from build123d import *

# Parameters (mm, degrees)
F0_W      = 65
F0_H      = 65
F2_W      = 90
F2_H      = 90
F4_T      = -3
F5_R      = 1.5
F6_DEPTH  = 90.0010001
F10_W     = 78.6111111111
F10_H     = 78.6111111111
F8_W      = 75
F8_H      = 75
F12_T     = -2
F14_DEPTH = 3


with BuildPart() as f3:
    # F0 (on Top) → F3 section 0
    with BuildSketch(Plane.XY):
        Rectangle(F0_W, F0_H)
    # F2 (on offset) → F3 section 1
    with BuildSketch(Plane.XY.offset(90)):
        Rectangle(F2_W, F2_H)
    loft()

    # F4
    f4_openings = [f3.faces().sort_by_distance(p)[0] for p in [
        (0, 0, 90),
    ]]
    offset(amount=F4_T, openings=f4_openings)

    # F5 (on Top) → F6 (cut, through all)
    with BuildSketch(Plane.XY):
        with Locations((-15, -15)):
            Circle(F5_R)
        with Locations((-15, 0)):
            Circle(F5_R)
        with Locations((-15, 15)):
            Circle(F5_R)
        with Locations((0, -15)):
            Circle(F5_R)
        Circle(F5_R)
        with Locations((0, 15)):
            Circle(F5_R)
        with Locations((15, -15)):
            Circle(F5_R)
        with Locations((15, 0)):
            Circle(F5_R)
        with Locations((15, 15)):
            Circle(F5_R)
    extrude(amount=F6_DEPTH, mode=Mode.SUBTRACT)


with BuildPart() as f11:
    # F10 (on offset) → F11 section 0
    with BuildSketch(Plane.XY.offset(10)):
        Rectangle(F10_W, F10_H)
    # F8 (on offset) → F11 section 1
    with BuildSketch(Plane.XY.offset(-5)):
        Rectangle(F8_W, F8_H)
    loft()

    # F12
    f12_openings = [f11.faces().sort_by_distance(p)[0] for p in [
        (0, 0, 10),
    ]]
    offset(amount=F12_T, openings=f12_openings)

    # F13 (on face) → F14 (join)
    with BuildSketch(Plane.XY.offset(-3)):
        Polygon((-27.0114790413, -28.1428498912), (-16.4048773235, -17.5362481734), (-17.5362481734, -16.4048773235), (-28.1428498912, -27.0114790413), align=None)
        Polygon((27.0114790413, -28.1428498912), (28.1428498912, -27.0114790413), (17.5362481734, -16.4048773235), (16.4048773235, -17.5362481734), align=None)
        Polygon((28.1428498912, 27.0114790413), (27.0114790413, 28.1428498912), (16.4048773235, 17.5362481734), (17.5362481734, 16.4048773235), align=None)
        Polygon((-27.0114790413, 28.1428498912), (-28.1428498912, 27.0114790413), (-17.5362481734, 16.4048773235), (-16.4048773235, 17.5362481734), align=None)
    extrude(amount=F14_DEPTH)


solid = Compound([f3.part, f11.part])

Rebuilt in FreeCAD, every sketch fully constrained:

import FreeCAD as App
import Part
import Sketcher
from FreeCAD import Vector


def faces_at(feature, points):
    """Names of the faces that lie closest to the given points."""
    faces = feature.Shape.Faces
    near = lambda p: min(range(len(faces)), key=lambda i: faces[i].distToShape(Part.Vertex(*p))[0])
    return sorted({f"Face{near(p) + 1}" for p in points})


def add_polygon(sketch, points):
    """Adds a closed chain of lines whose ends are joined by coincident constraints."""
    first, n = sketch.GeometryCount, len(points)
    for a, b in zip(points, points[1:] + points[:1]):
        sketch.addGeometry(Part.LineSegment(App.Vector(*a, 0), App.Vector(*b, 0)), False)
    for i in range(n):
        sketch.addConstraint(Sketcher.Constraint("Coincident", first + i, 2, first + (i + 1) % n, 1))

doc = App.newDocument("Part")
body = doc.addObject("PartDesign::Body", "Body")

# Sketch on XY plane
sketch1 = body.newObject("Sketcher::SketchObject", "Sketch")
sketch1.AttachmentSupport = (doc.getObject("XY_Plane"), [""])
sketch1.MapMode = "FlatFace"
add_polygon(sketch1, [(-32, 32), (-32, -32), (32, -32), (32, 32)])  # lines 0-3
sketch1.addConstraint([
    Sketcher.Constraint("Vertical", 0),
    Sketcher.Constraint("Horizontal", 1),
    Sketcher.Constraint("Vertical", 2),
    Sketcher.Constraint("Horizontal", 3),
    Sketcher.Constraint("Symmetric", 0, 2, 2, 2, -1, 1),
    Sketcher.Constraint("Equal", 3, 0),
    Sketcher.Constraint("DistanceX", 1, 1, 1, 2, 65.0),
])

# Sketch on XY plane
sketch2 = body.newObject("Sketcher::SketchObject", "Sketch001")
sketch2.AttachmentSupport = (doc.getObject("XY_Plane"), [""])
sketch2.MapMode = "FlatFace"
sketch2.AttachmentOffset = App.Placement(Vector(0, 0, 90), App.Rotation())
add_polygon(sketch2, [(-45, 45), (-45, -45), (45, -45), (45, 45)])  # lines 0-3
sketch2.addConstraint([
    Sketcher.Constraint("Vertical", 0),
    Sketcher.Constraint("Horizontal", 1),
    Sketcher.Constraint("Vertical", 2),
    Sketcher.Constraint("Horizontal", 3),
    Sketcher.Constraint("Symmetric", 0, 2, 2, 2, -1, 1),
    Sketcher.Constraint("Equal", 3, 0),
    Sketcher.Constraint("DistanceX", 1, 1, 1, 2, 90.0),
])

additiveloft = body.newObject("PartDesign::AdditiveLoft", "AdditiveLoft")
additiveloft.Profile = sketch1
additiveloft.Sections = [sketch2]
doc.recompute()

thickness = body.newObject("PartDesign::Thickness", "Thickness")
thickness.Base = (additiveloft, faces_at(additiveloft, [(0, 0, 90)]))
thickness.Value = 3
thickness.Reversed = True
thickness.Join = "Arc"

# Sketch on XY plane
sketch3 = body.newObject("Sketcher::SketchObject", "Sketch002")
sketch3.AttachmentSupport = (doc.getObject("XY_Plane"), [""])
sketch3.MapMode = "FlatFace"
sketch3.addGeometry([
    Part.Circle(Vector(-15, -15, 0), Vector(0, 0, 1), 1.5),  # 0
    Part.Circle(Vector(-15, 0, 0), Vector(0, 0, 1), 1.5),  # 1
    Part.Circle(Vector(-15, 15, 0), Vector(0, 0, 1), 1.5),  # 2
    Part.Circle(Vector(0, -15, 0), Vector(0, 0, 1), 1.5),  # 3
    Part.Circle(Vector(0, 0, 0), Vector(0, 0, 1), 1.5),  # 4
    Part.Circle(Vector(0, 15, 0), Vector(0, 0, 1), 1.5),  # 5
    Part.Circle(Vector(15, -15, 0), Vector(0, 0, 1), 1.5),  # 6
    Part.Circle(Vector(15, 0, 0), Vector(0, 0, 1), 1.5),  # 7
    Part.Circle(Vector(15, 15, 0), Vector(0, 0, 1), 1.5),  # 8
], False)
sketch3.addConstraint([
    Sketcher.Constraint("Coincident", 4, 3, -1, 1),
    Sketcher.Constraint("Equal", 0, 1),
    Sketcher.Constraint("Equal", 1, 2),
    Sketcher.Constraint("Equal", 2, 3),
    Sketcher.Constraint("Equal", 3, 4),
    Sketcher.Constraint("Equal", 4, 5),
    Sketcher.Constraint("Equal", 5, 6),
    Sketcher.Constraint("Equal", 6, 7),
    Sketcher.Constraint("Equal", 7, 8),
    Sketcher.Constraint("Symmetric", 3, 3, 5, 3, -1, 1),
    Sketcher.Constraint("Symmetric", 2, 3, 6, 3, -1, 1),
    Sketcher.Constraint("Symmetric", 1, 3, 7, 3, -1, 1),
    Sketcher.Constraint("Symmetric", 0, 3, 8, 3, -1, 1),
    Sketcher.Constraint("Symmetric", 0, 3, 6, 3, -2),
    Sketcher.Constraint("PointOnObject", 1, 3, -1),
    Sketcher.Constraint("PointOnObject", 3, 3, -2),
    Sketcher.Constraint("Horizontal", 0, 3, 3, 3),
    Sketcher.Constraint("Vertical", 0, 3, 1, 3),
    Sketcher.Constraint("Diameter", 0, 3.0),
    Sketcher.Constraint("DistanceX", 0, 3, -1, 1, 15.0),
    Sketcher.Constraint("DistanceY", 0, 3, -1, 1, 15.0),
])
pocket1 = body.newObject("PartDesign::Pocket", "Pocket")
pocket1.Profile = sketch3
pocket1.Type = "ThroughAll"
pocket1.Reversed = True
body2 = doc.addObject("PartDesign::Body", "Body001")

# Sketch on XY plane
sketch4 = body2.newObject("Sketcher::SketchObject", "Sketch003")
sketch4.AttachmentSupport = (doc.getObject("XY_Plane001"), [""])
sketch4.MapMode = "FlatFace"
sketch4.AttachmentOffset = App.Placement(Vector(0, 0, 10), App.Rotation())
add_polygon(sketch4, [(-39, 39), (-39, -39), (39, -39), (39, 39)])  # lines 0-3
sketch4.addConstraint([
    Sketcher.Constraint("Vertical", 0),
    Sketcher.Constraint("Horizontal", 1),
    Sketcher.Constraint("Vertical", 2),
    Sketcher.Constraint("Horizontal", 3),
    Sketcher.Constraint("Symmetric", 0, 2, 2, 2, -1, 1),
    Sketcher.Constraint("Equal", 3, 0),
    Sketcher.Constraint("DistanceX", 1, 1, 1, 2, 78.611111),
])

# Sketch on XY plane
sketch5 = body2.newObject("Sketcher::SketchObject", "Sketch004")
sketch5.AttachmentSupport = (doc.getObject("XY_Plane001"), [""])
sketch5.MapMode = "FlatFace"
sketch5.AttachmentOffset = App.Placement(Vector(0, 0, -5), App.Rotation())
add_polygon(sketch5, [(-38, 38), (-38, -38), (38, -38), (38, 38)])  # lines 0-3
sketch5.addConstraint([
    Sketcher.Constraint("Vertical", 0),
    Sketcher.Constraint("Horizontal", 1),
    Sketcher.Constraint("Vertical", 2),
    Sketcher.Constraint("Horizontal", 3),
    Sketcher.Constraint("Symmetric", 0, 2, 2, 2, -1, 1),
    Sketcher.Constraint("Equal", 3, 0),
    Sketcher.Constraint("DistanceX", 1, 1, 1, 2, 75.0),
])

additiveloft2 = body2.newObject("PartDesign::AdditiveLoft", "AdditiveLoft001")
additiveloft2.Profile = sketch4
additiveloft2.Sections = [sketch5]
doc.recompute()

thickness2 = body2.newObject("PartDesign::Thickness", "Thickness001")
thickness2.Base = (additiveloft2, faces_at(additiveloft2, [(0, 0, 10)]))
thickness2.Value = 2
thickness2.Reversed = True
thickness2.Join = "Arc"

# Sketch on XY plane
sketch6 = body2.newObject("Sketcher::SketchObject", "Sketch005")
sketch6.AttachmentSupport = (doc.getObject("XY_Plane001"), [""])
sketch6.MapMode = "FlatFace"
sketch6.AttachmentOffset = App.Placement(Vector(0, 0, -3), App.Rotation())
add_polygon(sketch6, [(-27, -28.1), (-16.4, -17.5), (-17.5, -16.4), (-28.1, -27)])  # lines 0-3
add_polygon(sketch6, [(27, -28.1), (28.1, -27), (17.5, -16.4), (16.4, -17.5)])  # lines 4-7
add_polygon(sketch6, [(28.1, 27), (27, 28.1), (16.4, 17.5), (17.5, 16.4)])  # lines 8-11
add_polygon(sketch6, [(-27, 28.1), (-28.1, 27), (-17.5, 16.4), (-16.4, 17.5)])  # lines 12-15
sketch6.addConstraint([
    Sketcher.Constraint("Symmetric", 3, 2, 8, 2, -1, 1),
    Sketcher.Constraint("Symmetric", 0, 2, 9, 2, -1, 1),
    Sketcher.Constraint("Symmetric", 1, 2, 10, 2, -1, 1),
    Sketcher.Constraint("Symmetric", 2, 2, 11, 2, -1, 1),
    Sketcher.Constraint("Symmetric", 4, 2, 12, 2, -1, 1),
    Sketcher.Constraint("Symmetric", 5, 2, 13, 2, -1, 1),
    Sketcher.Constraint("Symmetric", 6, 2, 14, 2, -1, 1),
    Sketcher.Constraint("Symmetric", 7, 2, 15, 2, -1, 1),
    Sketcher.Constraint("Symmetric", 2, 2, 4, 2, -2),
    Sketcher.Constraint("Symmetric", 1, 2, 5, 2, -2),
    Sketcher.Constraint("Symmetric", 0, 2, 6, 2, -2),
    Sketcher.Constraint("Symmetric", 3, 2, 7, 2, -2),
    Sketcher.Constraint("Perpendicular", 0, 1),
    Sketcher.Constraint("Perpendicular", 1, 2),
    Sketcher.Constraint("Perpendicular", 2, 3),
    Sketcher.Constraint("Perpendicular", 3, 4),
    Sketcher.Constraint("Distance", 0, 15.0),
    Sketcher.Constraint("Distance", 1, 1.6),
    Sketcher.Constraint("DistanceX", 1, 2, 4, 2, 45.679098),
    Sketcher.Constraint("DistanceY", 6, 2, 8, 2, 45.679098),
])
pad1 = body2.newObject("PartDesign::Pad", "Pad")
pad1.Profile = sketch6
pad1.Length = 3

doc.recompute()
